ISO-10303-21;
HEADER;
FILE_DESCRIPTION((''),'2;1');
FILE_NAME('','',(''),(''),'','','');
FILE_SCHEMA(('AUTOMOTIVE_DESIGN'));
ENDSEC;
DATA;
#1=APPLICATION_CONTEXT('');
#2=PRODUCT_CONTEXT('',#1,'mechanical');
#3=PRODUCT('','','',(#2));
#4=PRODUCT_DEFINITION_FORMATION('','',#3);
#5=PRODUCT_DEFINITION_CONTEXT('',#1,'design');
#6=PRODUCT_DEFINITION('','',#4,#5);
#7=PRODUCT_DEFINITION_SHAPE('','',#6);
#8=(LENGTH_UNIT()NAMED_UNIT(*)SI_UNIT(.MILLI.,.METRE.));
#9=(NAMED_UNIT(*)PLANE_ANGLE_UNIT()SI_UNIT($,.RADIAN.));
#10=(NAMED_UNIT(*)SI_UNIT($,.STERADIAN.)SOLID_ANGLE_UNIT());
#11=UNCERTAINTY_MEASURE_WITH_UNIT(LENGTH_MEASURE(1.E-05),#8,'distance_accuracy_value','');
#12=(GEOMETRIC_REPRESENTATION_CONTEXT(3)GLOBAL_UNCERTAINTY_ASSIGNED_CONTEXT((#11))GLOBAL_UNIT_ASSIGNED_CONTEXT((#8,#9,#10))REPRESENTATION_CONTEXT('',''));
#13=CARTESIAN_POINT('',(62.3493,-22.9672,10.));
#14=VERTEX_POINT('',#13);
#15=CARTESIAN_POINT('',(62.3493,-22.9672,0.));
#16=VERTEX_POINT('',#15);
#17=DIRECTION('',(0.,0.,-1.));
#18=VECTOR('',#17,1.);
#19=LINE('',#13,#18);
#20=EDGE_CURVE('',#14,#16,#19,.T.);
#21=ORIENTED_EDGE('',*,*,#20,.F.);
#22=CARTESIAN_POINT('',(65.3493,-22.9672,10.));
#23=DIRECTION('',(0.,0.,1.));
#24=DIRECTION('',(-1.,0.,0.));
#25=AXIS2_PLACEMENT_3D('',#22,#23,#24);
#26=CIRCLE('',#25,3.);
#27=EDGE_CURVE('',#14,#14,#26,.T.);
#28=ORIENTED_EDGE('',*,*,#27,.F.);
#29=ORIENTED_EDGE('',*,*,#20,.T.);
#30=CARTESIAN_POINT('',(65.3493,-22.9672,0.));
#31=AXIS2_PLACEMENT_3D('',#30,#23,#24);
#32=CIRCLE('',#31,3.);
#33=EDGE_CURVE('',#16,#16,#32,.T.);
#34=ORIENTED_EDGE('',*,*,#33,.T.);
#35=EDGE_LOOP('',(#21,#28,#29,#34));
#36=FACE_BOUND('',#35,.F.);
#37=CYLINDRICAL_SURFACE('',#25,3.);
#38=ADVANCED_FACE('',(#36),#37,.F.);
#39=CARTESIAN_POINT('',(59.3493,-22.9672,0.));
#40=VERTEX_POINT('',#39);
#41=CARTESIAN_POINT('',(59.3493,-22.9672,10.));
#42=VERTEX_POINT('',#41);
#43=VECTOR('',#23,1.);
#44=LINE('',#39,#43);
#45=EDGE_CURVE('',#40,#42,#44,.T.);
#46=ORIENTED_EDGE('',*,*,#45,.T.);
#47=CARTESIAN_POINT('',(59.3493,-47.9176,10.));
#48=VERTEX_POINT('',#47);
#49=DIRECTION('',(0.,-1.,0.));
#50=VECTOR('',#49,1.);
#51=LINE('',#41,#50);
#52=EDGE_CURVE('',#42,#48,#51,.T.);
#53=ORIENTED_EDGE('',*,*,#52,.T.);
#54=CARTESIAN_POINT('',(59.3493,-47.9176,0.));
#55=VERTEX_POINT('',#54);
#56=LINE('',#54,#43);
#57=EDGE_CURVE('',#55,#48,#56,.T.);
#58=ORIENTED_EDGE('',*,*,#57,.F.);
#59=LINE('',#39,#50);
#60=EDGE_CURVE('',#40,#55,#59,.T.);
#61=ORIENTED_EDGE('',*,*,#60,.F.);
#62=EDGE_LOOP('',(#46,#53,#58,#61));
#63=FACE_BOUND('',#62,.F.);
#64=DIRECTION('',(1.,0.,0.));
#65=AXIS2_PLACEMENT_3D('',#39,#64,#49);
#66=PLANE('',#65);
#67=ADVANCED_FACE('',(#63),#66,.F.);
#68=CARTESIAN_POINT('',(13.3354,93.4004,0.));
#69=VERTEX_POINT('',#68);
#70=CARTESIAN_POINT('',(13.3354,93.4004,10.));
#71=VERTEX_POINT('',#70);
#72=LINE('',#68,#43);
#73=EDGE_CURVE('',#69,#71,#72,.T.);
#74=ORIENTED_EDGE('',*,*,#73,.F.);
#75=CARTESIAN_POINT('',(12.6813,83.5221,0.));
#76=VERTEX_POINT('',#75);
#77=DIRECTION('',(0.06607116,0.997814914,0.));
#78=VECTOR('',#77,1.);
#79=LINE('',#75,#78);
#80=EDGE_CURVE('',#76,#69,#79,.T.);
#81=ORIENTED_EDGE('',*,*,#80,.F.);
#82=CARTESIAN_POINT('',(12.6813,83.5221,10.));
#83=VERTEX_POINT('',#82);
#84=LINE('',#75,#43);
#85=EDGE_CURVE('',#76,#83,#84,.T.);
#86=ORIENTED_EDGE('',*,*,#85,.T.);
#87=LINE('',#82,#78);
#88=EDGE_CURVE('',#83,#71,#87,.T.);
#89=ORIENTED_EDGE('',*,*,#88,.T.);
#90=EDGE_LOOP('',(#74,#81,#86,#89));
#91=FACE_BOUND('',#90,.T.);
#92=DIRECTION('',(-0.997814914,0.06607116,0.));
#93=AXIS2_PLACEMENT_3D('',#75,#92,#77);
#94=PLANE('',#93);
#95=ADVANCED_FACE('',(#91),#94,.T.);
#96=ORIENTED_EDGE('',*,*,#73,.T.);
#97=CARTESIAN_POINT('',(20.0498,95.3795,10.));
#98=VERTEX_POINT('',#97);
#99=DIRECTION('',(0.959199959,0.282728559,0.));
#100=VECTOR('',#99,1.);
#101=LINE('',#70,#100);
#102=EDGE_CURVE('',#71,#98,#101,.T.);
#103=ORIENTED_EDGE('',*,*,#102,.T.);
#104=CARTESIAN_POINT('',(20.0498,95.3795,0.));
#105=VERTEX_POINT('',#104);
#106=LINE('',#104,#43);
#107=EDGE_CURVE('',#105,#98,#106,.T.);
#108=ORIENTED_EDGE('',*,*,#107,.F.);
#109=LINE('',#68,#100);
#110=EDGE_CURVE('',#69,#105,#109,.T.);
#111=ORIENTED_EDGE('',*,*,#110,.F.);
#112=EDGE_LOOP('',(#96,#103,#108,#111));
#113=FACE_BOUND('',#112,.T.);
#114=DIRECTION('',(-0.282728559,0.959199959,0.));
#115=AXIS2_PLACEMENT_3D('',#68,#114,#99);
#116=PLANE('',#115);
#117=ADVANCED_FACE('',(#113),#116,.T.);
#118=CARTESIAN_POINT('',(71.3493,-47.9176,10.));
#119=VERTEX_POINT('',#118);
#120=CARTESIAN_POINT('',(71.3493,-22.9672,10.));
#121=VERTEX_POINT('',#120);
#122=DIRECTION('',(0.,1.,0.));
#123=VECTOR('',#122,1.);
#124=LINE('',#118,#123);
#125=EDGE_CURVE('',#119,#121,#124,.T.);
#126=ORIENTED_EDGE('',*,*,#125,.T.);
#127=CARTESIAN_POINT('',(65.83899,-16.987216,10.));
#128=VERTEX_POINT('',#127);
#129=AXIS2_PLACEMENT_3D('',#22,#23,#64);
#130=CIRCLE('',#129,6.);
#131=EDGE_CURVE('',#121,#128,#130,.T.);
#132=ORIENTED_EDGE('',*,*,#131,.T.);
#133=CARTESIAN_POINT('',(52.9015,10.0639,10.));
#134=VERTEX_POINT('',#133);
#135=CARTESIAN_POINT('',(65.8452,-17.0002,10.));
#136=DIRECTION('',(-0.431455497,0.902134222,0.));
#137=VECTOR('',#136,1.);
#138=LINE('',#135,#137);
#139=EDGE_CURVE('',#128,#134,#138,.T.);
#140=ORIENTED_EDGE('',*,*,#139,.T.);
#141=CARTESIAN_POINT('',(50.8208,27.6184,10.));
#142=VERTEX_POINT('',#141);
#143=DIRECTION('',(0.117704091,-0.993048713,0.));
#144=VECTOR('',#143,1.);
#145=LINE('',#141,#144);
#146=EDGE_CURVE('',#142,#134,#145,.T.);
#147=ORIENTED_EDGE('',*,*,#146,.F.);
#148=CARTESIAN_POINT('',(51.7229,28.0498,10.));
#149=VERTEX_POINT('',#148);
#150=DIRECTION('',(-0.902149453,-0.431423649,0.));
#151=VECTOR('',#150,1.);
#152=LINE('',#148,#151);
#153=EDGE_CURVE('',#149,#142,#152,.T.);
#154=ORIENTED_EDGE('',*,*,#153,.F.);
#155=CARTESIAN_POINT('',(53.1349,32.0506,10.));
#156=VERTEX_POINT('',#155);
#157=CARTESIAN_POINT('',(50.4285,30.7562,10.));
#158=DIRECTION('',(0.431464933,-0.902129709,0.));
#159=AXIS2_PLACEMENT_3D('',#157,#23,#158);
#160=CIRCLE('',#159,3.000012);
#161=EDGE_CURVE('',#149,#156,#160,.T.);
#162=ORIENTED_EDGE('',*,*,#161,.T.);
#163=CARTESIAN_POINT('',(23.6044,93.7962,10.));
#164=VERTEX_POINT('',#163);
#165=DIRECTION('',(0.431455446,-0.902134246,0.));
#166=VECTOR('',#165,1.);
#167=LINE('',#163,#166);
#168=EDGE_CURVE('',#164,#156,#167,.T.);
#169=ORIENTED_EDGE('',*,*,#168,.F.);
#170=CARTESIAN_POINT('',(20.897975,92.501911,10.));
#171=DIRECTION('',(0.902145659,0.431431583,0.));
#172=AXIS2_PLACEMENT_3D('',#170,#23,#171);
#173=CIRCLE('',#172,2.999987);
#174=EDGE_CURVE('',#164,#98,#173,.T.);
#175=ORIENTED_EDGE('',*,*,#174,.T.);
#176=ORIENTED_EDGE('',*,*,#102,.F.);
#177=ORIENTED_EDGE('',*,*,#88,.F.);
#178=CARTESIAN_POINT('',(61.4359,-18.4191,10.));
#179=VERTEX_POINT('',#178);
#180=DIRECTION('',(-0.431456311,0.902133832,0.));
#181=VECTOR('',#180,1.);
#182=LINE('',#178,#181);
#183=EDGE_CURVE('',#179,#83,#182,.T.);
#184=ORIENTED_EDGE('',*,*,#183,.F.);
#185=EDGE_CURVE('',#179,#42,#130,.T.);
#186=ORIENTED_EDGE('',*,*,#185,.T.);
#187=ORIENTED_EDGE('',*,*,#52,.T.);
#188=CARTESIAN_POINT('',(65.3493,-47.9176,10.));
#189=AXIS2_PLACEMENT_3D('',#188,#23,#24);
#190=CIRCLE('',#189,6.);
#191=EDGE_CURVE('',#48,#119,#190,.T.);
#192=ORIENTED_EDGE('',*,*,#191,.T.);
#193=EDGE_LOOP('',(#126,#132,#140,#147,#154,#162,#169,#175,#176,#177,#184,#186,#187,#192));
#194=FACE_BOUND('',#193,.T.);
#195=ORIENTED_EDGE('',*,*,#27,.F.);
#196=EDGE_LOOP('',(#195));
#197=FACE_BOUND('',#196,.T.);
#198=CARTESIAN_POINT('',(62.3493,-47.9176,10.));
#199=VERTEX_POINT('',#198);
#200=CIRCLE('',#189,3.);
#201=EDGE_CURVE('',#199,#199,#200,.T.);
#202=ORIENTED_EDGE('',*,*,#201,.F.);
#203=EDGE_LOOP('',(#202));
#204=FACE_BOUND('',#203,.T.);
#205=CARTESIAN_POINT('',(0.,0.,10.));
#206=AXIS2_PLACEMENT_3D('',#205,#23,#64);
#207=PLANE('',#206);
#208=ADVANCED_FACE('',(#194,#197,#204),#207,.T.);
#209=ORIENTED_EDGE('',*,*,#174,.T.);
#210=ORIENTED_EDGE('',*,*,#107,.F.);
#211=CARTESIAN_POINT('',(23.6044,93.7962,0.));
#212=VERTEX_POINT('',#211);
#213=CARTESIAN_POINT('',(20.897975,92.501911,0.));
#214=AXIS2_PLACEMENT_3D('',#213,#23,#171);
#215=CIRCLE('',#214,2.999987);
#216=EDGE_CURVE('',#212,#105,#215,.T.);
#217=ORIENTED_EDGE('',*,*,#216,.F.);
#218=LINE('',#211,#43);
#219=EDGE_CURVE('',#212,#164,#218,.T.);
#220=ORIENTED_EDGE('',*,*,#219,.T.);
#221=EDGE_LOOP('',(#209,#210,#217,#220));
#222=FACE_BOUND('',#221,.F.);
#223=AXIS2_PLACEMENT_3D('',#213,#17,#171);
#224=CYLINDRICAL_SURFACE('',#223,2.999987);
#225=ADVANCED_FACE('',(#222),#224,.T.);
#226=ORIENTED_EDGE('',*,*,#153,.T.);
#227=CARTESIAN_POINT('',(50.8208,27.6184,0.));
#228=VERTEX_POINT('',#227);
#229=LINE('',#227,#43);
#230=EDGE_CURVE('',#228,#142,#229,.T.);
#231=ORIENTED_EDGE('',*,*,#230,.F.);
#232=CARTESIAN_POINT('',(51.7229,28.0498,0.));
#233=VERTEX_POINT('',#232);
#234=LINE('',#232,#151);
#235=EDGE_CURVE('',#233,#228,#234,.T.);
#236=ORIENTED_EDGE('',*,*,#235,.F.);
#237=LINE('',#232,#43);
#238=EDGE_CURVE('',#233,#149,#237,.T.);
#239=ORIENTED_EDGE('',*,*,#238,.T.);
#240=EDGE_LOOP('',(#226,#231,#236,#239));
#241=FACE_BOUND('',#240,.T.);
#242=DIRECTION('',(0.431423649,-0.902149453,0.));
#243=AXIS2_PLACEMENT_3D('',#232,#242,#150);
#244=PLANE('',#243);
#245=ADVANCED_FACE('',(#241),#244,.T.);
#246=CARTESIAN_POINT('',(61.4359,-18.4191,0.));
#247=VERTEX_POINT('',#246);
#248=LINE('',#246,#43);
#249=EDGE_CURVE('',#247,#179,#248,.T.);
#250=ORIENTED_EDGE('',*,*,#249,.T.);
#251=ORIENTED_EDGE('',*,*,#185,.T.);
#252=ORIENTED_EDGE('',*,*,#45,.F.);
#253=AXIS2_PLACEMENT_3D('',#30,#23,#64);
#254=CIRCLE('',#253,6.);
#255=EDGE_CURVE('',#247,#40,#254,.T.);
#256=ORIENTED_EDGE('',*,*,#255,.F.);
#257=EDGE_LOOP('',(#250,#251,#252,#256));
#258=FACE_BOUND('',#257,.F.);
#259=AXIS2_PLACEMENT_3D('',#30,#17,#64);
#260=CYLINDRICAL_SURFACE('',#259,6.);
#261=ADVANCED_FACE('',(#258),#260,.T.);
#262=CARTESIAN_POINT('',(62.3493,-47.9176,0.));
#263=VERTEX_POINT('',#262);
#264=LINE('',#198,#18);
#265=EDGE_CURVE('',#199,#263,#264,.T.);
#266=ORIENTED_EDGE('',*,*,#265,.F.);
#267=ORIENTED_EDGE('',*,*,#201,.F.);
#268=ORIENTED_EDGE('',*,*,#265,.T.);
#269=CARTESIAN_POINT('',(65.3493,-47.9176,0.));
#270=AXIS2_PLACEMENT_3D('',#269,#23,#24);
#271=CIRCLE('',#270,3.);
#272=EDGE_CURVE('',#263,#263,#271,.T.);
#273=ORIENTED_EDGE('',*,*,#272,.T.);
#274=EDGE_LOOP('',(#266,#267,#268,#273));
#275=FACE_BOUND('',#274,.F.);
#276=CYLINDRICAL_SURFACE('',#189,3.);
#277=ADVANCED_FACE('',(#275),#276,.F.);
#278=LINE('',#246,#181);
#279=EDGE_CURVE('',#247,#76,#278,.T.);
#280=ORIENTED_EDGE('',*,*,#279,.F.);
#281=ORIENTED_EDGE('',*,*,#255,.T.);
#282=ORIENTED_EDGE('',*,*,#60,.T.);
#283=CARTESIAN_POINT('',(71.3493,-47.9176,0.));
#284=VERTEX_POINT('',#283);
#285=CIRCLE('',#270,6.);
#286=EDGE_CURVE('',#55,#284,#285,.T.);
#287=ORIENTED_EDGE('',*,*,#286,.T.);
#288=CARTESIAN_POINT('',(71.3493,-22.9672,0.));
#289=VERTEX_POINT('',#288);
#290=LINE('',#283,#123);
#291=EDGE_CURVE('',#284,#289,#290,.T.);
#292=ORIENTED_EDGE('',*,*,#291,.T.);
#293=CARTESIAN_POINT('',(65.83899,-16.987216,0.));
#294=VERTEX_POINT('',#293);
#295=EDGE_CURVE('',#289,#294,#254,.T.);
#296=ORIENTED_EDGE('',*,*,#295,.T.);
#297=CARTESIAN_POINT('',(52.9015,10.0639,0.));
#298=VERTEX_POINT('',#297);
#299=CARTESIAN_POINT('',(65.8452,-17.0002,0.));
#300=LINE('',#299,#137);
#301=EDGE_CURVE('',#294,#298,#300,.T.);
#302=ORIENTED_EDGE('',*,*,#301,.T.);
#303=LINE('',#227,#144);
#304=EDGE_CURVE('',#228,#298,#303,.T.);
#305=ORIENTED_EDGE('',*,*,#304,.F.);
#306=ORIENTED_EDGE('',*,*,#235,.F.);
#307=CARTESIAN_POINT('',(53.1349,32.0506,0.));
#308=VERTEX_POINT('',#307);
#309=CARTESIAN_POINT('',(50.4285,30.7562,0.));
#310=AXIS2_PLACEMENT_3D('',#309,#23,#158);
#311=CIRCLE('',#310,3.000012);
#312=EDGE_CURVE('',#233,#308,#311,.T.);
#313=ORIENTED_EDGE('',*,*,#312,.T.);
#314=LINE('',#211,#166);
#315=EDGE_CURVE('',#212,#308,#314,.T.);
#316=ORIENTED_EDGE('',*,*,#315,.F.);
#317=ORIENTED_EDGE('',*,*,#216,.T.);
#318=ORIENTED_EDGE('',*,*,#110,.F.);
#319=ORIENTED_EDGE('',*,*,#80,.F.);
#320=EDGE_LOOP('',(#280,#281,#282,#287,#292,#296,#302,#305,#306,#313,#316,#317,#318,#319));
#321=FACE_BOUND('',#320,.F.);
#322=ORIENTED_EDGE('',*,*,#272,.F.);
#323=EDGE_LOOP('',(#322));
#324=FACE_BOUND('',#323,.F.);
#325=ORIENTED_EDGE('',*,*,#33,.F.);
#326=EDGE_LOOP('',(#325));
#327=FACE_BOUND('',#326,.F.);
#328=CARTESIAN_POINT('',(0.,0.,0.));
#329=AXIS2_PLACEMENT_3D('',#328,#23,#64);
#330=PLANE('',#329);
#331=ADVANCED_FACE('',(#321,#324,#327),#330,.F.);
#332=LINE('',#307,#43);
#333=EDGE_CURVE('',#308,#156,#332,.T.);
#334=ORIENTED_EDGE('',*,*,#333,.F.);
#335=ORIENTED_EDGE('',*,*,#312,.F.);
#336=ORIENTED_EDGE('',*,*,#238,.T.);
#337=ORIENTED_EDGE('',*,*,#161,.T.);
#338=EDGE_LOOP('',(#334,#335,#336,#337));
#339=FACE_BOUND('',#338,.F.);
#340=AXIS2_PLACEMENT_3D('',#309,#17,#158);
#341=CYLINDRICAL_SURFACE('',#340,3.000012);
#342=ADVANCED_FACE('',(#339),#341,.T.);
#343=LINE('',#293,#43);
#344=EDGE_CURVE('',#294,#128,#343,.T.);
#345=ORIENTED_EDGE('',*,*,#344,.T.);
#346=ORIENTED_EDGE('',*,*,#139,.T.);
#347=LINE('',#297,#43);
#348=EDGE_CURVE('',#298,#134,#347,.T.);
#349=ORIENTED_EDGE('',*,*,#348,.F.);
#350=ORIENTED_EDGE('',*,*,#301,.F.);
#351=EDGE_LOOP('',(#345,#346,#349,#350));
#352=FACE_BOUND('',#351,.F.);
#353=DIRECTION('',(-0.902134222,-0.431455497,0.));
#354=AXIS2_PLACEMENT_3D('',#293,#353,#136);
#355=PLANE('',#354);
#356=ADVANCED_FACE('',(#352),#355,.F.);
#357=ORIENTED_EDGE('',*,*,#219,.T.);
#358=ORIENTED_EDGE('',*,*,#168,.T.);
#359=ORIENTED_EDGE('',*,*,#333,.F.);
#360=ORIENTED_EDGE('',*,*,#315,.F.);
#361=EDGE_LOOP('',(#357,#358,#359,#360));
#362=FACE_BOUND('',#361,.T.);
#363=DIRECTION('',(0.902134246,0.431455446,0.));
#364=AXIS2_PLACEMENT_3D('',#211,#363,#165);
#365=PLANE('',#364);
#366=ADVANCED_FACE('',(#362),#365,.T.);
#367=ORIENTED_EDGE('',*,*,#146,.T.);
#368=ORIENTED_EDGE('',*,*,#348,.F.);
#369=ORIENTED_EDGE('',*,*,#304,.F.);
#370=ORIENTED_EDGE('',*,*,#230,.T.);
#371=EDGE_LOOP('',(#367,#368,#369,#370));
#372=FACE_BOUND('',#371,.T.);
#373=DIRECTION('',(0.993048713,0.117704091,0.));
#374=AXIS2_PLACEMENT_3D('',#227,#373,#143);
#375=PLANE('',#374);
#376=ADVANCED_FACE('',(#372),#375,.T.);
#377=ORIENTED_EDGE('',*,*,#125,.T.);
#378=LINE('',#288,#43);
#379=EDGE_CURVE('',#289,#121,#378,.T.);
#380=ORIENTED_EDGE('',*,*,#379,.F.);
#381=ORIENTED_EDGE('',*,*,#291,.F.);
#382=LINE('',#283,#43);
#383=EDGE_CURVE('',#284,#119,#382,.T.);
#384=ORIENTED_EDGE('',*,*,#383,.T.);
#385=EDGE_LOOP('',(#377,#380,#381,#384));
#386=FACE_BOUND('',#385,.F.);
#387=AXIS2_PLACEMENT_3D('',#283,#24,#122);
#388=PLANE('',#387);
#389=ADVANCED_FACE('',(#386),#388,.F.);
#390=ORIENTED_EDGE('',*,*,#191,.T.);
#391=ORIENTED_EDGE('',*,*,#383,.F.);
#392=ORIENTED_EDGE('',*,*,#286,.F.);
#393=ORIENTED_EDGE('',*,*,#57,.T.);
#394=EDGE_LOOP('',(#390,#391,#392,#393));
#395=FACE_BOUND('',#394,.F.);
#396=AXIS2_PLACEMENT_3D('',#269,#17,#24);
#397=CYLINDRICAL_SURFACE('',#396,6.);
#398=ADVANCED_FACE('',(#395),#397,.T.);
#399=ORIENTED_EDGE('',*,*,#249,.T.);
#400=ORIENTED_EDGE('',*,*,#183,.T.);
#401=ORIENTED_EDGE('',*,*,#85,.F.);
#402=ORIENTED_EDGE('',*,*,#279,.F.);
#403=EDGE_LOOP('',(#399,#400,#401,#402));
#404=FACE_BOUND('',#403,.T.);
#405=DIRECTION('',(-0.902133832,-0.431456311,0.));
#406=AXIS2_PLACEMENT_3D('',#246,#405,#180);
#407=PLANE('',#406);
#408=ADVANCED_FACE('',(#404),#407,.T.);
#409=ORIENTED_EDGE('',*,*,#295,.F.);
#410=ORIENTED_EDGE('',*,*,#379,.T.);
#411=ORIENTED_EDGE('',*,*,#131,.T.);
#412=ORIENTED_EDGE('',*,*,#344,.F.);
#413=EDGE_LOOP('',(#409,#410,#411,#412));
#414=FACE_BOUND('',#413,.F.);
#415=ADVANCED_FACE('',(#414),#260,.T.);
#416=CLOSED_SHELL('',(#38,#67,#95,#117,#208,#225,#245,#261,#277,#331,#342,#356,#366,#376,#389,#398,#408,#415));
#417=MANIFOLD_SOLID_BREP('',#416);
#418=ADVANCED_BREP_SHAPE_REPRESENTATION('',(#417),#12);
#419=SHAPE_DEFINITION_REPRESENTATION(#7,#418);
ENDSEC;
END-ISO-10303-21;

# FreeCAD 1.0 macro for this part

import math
import FreeCAD as App
import Part
import Sketcher
from FreeCAD import Vector
Q = App.Units.Quantity

doc = App.newDocument("Part")
body = doc.addObject("PartDesign::Body", "Body")

# Sketch on XY plane
sketch1 = body.newObject("Sketcher::SketchObject", "Sketch")
sketch1.AttachmentSupport = (doc.getObject("XY_Plane"), [""])
sketch1.MapMode = "FlatFace"
sketch1.addGeometry([
    Part.ArcOfCircle(Part.Circle(Vector(65.3, -23, 0), Vector(0, 0, 1), 6), math.radians(131), math.radians(180)),  # 0
    Part.LineSegment(Vector(59.3, -23, 0), Vector(59.3, -47.9, 0)),  # 1
    Part.ArcOfCircle(Part.Circle(Vector(65.3, -47.9, 0), Vector(0, 0, 1), 6), math.radians(180), math.radians(360)),  # 2
    Part.LineSegment(Vector(71.3, -47.9, 0), Vector(71.3, -23, 0)),  # 3
    Part.ArcOfCircle(Part.Circle(Vector(65.3, -23, 0), Vector(0, 0, 1), 6), math.radians(0), math.radians(85)),  # 4
    Part.LineSegment(Vector(65.8, -17, 0), Vector(52.9, 10.1, 0)),  # 5
    Part.LineSegment(Vector(52.9, 10.1, 0), Vector(50.8, 27.6, 0)),  # 6
    Part.LineSegment(Vector(50.8, 27.6, 0), Vector(51.7, 28, 0)),  # 7
    Part.ArcOfCircle(Part.Circle(Vector(50.4, 30.8, 0), Vector(0, 0, 1), 3), math.radians(-64), math.radians(26)),  # 8
    Part.LineSegment(Vector(53.1, 32.1, 0), Vector(23.6, 93.8, 0)),  # 9
    Part.ArcOfCircle(Part.Circle(Vector(20.9, 92.5, 0), Vector(0, 0, 1), 3), math.radians(26), math.radians(106)),  # 10
    Part.LineSegment(Vector(20, 95.4, 0), Vector(13.3, 93.4, 0)),  # 11
    Part.LineSegment(Vector(13.3, 93.4, 0), Vector(12.7, 83.5, 0)),  # 12
    Part.LineSegment(Vector(12.7, 83.5, 0), Vector(61.4, -18.4, 0)),  # 13
], False)
sketch1.addConstraint([
    Sketcher.Constraint("Tangent", 0, 2, 1, 1),
    Sketcher.Constraint("Tangent", 1, 2, 2, 1),
    Sketcher.Constraint("Tangent", 2, 2, 3, 1),
    Sketcher.Constraint("Tangent", 3, 2, 4, 1),
    Sketcher.Constraint("Coincident", 4, 2, 5, 1),
    Sketcher.Constraint("Coincident", 5, 2, 6, 1),
    Sketcher.Constraint("Coincident", 6, 2, 7, 1),
    Sketcher.Constraint("Tangent", 7, 2, 8, 1),
    Sketcher.Constraint("Tangent", 8, 2, 9, 1),
    Sketcher.Constraint("Tangent", 9, 2, 10, 1),
    Sketcher.Constraint("Tangent", 10, 2, 11, 1),
    Sketcher.Constraint("Coincident", 11, 2, 12, 1),
    Sketcher.Constraint("Coincident", 12, 2, 13, 1),
    Sketcher.Constraint("Coincident", 13, 2, 0, 1),
    Sketcher.Constraint("Vertical", 1),
    Sketcher.Constraint("Vertical", 3),
    Sketcher.Constraint("Coincident", 4, 3, 0, 3),
    Sketcher.Constraint("Equal", 0, 2),
    Sketcher.Constraint("Equal", 8, 10),
    Sketcher.Constraint("Perpendicular", 5, 7),
    Sketcher.Constraint("Perpendicular", 7, 9),
    Sketcher.Constraint("Parallel", 9, 13),
    Sketcher.Constraint("Radius", 0, 6.0),
    Sketcher.Constraint("Radius", 8, 3.0),
    Sketcher.Constraint("Distance", 7, 1.0),
    Sketcher.Constraint("Distance", 11, 7.0),
    Sketcher.Constraint("Distance", 13, 113.0),
    Sketcher.Constraint("Distance", 12, 9.9),
    Sketcher.Constraint("Angle", 5, Q("115.56 deg")),
    Sketcher.Constraint("Angle", 6, Q("96.7596 deg")),
    Sketcher.Constraint("DistanceY", 0, 3, 4, 2, 5.98),
    Sketcher.Constraint("DistanceY", 8, 3, 9, 2, 63.04),
    Sketcher.Constraint("DistanceY", 1, 2, 1, 1, 24.9504),
    Sketcher.Constraint("DistanceX", -1, 1, 10, 3, 20.898),
    Sketcher.Constraint("DistanceY", -1, 1, 10, 3, 92.502),
    Sketcher.Constraint("DistanceX", -1, 1, 4, 2, 65.839),
    Sketcher.Constraint("DistanceY", -1, 1, 5, 2, 10.064),
    Sketcher.Constraint("DistanceY", -1, 1, 12, 2, 83.522),
])
pad1 = body.newObject("PartDesign::Pad", "Pad")
pad1.Profile = sketch1
pad1.Length = 10

# Sketch on XY plane
sketch2 = body.newObject("Sketcher::SketchObject", "Sketch001")
sketch2.AttachmentSupport = (doc.getObject("XY_Plane"), [""])
sketch2.MapMode = "FlatFace"
sketch2.AttachmentOffset = App.Placement(Vector(0, 0, 10), App.Rotation())
sketch2.addGeometry([
    Part.Circle(Vector(65.3, -23, 0), Vector(0, 0, 1), 3),
    Part.Circle(Vector(65.3, -47.9, 0), Vector(0, 0, 1), 3),
], False)
sketch2.addConstraint([
    Sketcher.Constraint("Equal", 0, 1),
    Sketcher.Constraint("Vertical", 0, 3, 1, 3),
    Sketcher.Constraint("Diameter", 0, 6.0),
    Sketcher.Constraint("DistanceX", -1, 1, 0, 3, 65.3493),
    Sketcher.Constraint("DistanceY", 0, 3, -1, 1, 22.9672),
    Sketcher.Constraint("DistanceY", 1, 3, -1, 1, 47.9176),
])
pocket1 = body.newObject("PartDesign::Pocket", "Pocket")
pocket1.Profile = sketch2
pocket1.Length = 30

doc.recompute()
